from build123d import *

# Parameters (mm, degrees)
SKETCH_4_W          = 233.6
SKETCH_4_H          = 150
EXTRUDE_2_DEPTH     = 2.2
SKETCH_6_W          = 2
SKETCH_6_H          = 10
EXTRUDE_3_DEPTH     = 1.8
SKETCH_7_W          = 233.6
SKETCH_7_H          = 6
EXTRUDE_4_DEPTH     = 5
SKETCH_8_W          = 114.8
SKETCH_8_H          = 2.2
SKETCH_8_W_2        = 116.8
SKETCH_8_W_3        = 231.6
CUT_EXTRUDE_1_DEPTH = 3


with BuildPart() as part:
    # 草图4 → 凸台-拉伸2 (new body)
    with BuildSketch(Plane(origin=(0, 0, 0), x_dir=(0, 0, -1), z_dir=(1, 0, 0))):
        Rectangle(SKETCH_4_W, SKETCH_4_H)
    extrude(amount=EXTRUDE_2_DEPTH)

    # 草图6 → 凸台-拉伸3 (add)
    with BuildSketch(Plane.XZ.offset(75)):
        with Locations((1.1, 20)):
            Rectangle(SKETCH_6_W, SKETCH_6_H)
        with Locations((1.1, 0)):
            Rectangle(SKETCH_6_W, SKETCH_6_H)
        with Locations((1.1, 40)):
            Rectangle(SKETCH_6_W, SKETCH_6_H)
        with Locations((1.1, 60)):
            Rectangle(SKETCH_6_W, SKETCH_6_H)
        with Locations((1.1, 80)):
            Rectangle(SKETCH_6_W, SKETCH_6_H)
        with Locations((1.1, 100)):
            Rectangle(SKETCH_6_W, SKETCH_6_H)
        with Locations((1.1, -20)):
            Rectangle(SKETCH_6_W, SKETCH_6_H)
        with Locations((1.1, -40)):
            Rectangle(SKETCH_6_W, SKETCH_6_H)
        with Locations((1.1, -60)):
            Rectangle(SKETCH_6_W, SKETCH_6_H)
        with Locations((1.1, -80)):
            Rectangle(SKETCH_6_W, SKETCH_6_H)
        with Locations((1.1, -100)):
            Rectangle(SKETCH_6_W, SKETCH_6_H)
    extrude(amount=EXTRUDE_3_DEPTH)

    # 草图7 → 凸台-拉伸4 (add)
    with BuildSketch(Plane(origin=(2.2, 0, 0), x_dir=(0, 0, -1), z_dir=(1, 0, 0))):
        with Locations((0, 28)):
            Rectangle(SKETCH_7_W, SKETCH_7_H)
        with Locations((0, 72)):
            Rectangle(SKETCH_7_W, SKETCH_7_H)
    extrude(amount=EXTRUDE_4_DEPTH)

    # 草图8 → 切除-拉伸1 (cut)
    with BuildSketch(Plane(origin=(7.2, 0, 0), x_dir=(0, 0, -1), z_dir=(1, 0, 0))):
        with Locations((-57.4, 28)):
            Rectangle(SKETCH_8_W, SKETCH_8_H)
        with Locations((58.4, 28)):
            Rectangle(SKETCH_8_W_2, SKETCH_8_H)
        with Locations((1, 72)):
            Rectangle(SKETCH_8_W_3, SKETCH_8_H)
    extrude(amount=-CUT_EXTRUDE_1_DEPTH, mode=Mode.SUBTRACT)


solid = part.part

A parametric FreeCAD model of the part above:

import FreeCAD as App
import Part
import Sketcher

doc = App.newDocument("Part")
body = doc.addObject("PartDesign::Body", "Body")

# Sketch on YZ plane
sketch1 = body.newObject("Sketcher::SketchObject", "Sketch")
sketch1.AttachmentSupport = (doc.getObject("YZ_Plane"), [""])
sketch1.MapMode = "FlatFace"
sketch1.addGeometry(Part.LineSegment(App.Vector(75, 117, 0), App.Vector(-75, 117, 0)), False)
sketch1.addGeometry(Part.LineSegment(App.Vector(-75, 117, 0), App.Vector(-75, -117, 0)), False)
sketch1.addGeometry(Part.LineSegment(App.Vector(-75, -117, 0), App.Vector(75, -117, 0)), False)
sketch1.addGeometry(Part.LineSegment(App.Vector(75, -117, 0), App.Vector(75, 117, 0)), False)
sketch1.addConstraint(Sketcher.Constraint("Coincident", 0, 2, 1, 1))
sketch1.addConstraint(Sketcher.Constraint("Coincident", 1, 2, 2, 1))
sketch1.addConstraint(Sketcher.Constraint("Coincident", 2, 2, 3, 1))
sketch1.addConstraint(Sketcher.Constraint("Coincident", 3, 2, 0, 1))
sketch1.addConstraint(Sketcher.Constraint("Horizontal", 0))
sketch1.addConstraint(Sketcher.Constraint("Vertical", 1))
sketch1.addConstraint(Sketcher.Constraint("Horizontal", 2))
sketch1.addConstraint(Sketcher.Constraint("Vertical", 3))
sketch1.addConstraint(Sketcher.Constraint("Symmetric", 0, 2, 2, 2, -1, 1))
sketch1.addConstraint(Sketcher.Constraint("DistanceX", 0, 2, 0, 1, 150.0))
sketch1.addConstraint(Sketcher.Constraint("DistanceY", 1, 2, 1, 1, 233.6))
pad1 = body.newObject("PartDesign::Pad", "Pad")
pad1.Profile = sketch1
pad1.Length = 2.2

# Sketch on XZ plane
sketch2 = body.newObject("Sketcher::SketchObject", "Sketch001")
sketch2.AttachmentSupport = (doc.getObject("XZ_Plane"), [""])
sketch2.MapMode = "FlatFace"
sketch2.AttachmentOffset = App.Placement(App.Vector(0, 0, 75), App.Rotation())
sketch2.addGeometry(Part.LineSegment(App.Vector(0.1, 25, 0), App.Vector(0.1, 15, 0)), False)
sketch2.addGeometry(Part.LineSegment(App.Vector(0.1, 15, 0), App.Vector(2.1, 15, 0)), False)
sketch2.addGeometry(Part.LineSegment(App.Vector(2.1, 15, 0), App.Vector(2.1, 25, 0)), False)
sketch2.addGeometry(Part.LineSegment(App.Vector(2.1, 25, 0), App.Vector(0.1, 25, 0)), False)
sketch2.addGeometry(Part.LineSegment(App.Vector(0.1, 5, 0), App.Vector(0.1, -5, 0)), False)
sketch2.addGeometry(Part.LineSegment(App.Vector(0.1, -5, 0), App.Vector(2.1, -5, 0)), False)
sketch2.addGeometry(Part.LineSegment(App.Vector(2.1, -5, 0), App.Vector(2.1, 5, 0)), False)
sketch2.addGeometry(Part.LineSegment(App.Vector(2.1, 5, 0), App.Vector(0.1, 5, 0)), False)
sketch2.addGeometry(Part.LineSegment(App.Vector(0.1, 45, 0), App.Vector(0.1, 35, 0)), False)
sketch2.addGeometry(Part.LineSegment(App.Vector(0.1, 35, 0), App.Vector(2.1, 35, 0)), False)
sketch2.addGeometry(Part.LineSegment(App.Vector(2.1, 35, 0), App.Vector(2.1, 45, 0)), False)
sketch2.addGeometry(Part.LineSegment(App.Vector(2.1, 45, 0), App.Vector(0.1, 45, 0)), False)
sketch2.addGeometry(Part.LineSegment(App.Vector(0.1, 65, 0), App.Vector(0.1, 55, 0)), False)
sketch2.addGeometry(Part.LineSegment(App.Vector(0.1, 55, 0), App.Vector(2.1, 55, 0)), False)
sketch2.addGeometry(Part.LineSegment(App.Vector(2.1, 55, 0), App.Vector(2.1, 65, 0)), False)
sketch2.addGeometry(Part.LineSegment(App.Vector(2.1, 65, 0), App.Vector(0.1, 65, 0)), False)
sketch2.addGeometry(Part.LineSegment(App.Vector(0.1, 85, 0), App.Vector(0.1, 75, 0)), False)
sketch2.addGeometry(Part.LineSegment(App.Vector(0.1, 75, 0), App.Vector(2.1, 75, 0)), False)
sketch2.addGeometry(Part.LineSegment(App.Vector(2.1, 75, 0), App.Vector(2.1, 85, 0)), False)
sketch2.addGeometry(Part.LineSegment(App.Vector(2.1, 85, 0), App.Vector(0.1, 85, 0)), False)
sketch2.addGeometry(Part.LineSegment(App.Vector(0.1, 105, 0), App.Vector(0.1, 95, 0)), False)
sketch2.addGeometry(Part.LineSegment(App.Vector(0.1, 95, 0), App.Vector(2.1, 95, 0)), False)
sketch2.addGeometry(Part.LineSegment(App.Vector(2.1, 95, 0), App.Vector(2.1, 105, 0)), False)
sketch2.addGeometry(Part.LineSegment(App.Vector(2.1, 105, 0), App.Vector(0.1, 105, 0)), False)
sketch2.addGeometry(Part.LineSegment(App.Vector(0.1, -15, 0), App.Vector(0.1, -25, 0)), False)
sketch2.addGeometry(Part.LineSegment(App.Vector(0.1, -25, 0), App.Vector(2.1, -25, 0)), False)
sketch2.addGeometry(Part.LineSegment(App.Vector(2.1, -25, 0), App.Vector(2.1, -15, 0)), False)
sketch2.addGeometry(Part.LineSegment(App.Vector(2.1, -15, 0), App.Vector(0.1, -15, 0)), False)
sketch2.addGeometry(Part.LineSegment(App.Vector(0.1, -35, 0), App.Vector(0.1, -45, 0)), False)
sketch2.addGeometry(Part.LineSegment(App.Vector(0.1, -45, 0), App.Vector(2.1, -45, 0)), False)
sketch2.addGeometry(Part.LineSegment(App.Vector(2.1, -45, 0), App.Vector(2.1, -35, 0)), False)
sketch2.addGeometry(Part.LineSegment(App.Vector(2.1, -35, 0), App.Vector(0.1, -35, 0)), False)
sketch2.addGeometry(Part.LineSegment(App.Vector(0.1, -55, 0), App.Vector(0.1, -65, 0)), False)
sketch2.addGeometry(Part.LineSegment(App.Vector(0.1, -65, 0), App.Vector(2.1, -65, 0)), False)
sketch2.addGeometry(Part.LineSegment(App.Vector(2.1, -65, 0), App.Vector(2.1, -55, 0)), False)
sketch2.addGeometry(Part.LineSegment(App.Vector(2.1, -55, 0), App.Vector(0.1, -55, 0)), False)
sketch2.addGeometry(Part.LineSegment(App.Vector(0.1, -75, 0), App.Vector(0.1, -85, 0)), False)
sketch2.addGeometry(Part.LineSegment(App.Vector(0.1, -85, 0), App.Vector(2.1, -85, 0)), False)
sketch2.addGeometry(Part.LineSegment(App.Vector(2.1, -85, 0), App.Vector(2.1, -75, 0)), False)
sketch2.addGeometry(Part.LineSegment(App.Vector(2.1, -75, 0), App.Vector(0.1, -75, 0)), False)
sketch2.addGeometry(Part.LineSegment(App.Vector(0.1, -95, 0), App.Vector(0.1, -105, 0)), False)
sketch2.addGeometry(Part.LineSegment(App.Vector(0.1, -105, 0), App.Vector(2.1, -105, 0)), False)
sketch2.addGeometry(Part.LineSegment(App.Vector(2.1, -105, 0), App.Vector(2.1, -95, 0)), False)
sketch2.addGeometry(Part.LineSegment(App.Vector(2.1, -95, 0), App.Vector(0.1, -95, 0)), False)
sketch2.addConstraint(Sketcher.Constraint("Coincident", 0, 2, 1, 1))
sketch2.addConstraint(Sketcher.Constraint("Coincident", 1, 2, 2, 1))
sketch2.addConstraint(Sketcher.Constraint("Coincident", 2, 2, 3, 1))
sketch2.addConstraint(Sketcher.Constraint("Coincident", 3, 2, 0, 1))
sketch2.addConstraint(Sketcher.Constraint("Coincident", 4, 2, 5, 1))
sketch2.addConstraint(Sketcher.Constraint("Coincident", 5, 2, 6, 1))
sketch2.addConstraint(Sketcher.Constraint("Coincident", 6, 2, 7, 1))
sketch2.addConstraint(Sketcher.Constraint("Coincident", 7, 2, 4, 1))
sketch2.addConstraint(Sketcher.Constraint("Coincident", 8, 2, 9, 1))
sketch2.addConstraint(Sketcher.Constraint("Coincident", 9, 2, 10, 1))
sketch2.addConstraint(Sketcher.Constraint("Coincident", 10, 2, 11, 1))
sketch2.addConstraint(Sketcher.Constraint("Coincident", 11, 2, 8, 1))
sketch2.addConstraint(Sketcher.Constraint("Coincident", 12, 2, 13, 1))
sketch2.addConstraint(Sketcher.Constraint("Coincident", 13, 2, 14, 1))
sketch2.addConstraint(Sketcher.Constraint("Coincident", 14, 2, 15, 1))
sketch2.addConstraint(Sketcher.Constraint("Coincident", 15, 2, 12, 1))
sketch2.addConstraint(Sketcher.Constraint("Coincident", 16, 2, 17, 1))
sketch2.addConstraint(Sketcher.Constraint("Coincident", 17, 2, 18, 1))
sketch2.addConstraint(Sketcher.Constraint("Coincident", 18, 2, 19, 1))
sketch2.addConstraint(Sketcher.Constraint("Coincident", 19, 2, 16, 1))
sketch2.addConstraint(Sketcher.Constraint("Coincident", 20, 2, 21, 1))
sketch2.addConstraint(Sketcher.Constraint("Coincident", 21, 2, 22, 1))
sketch2.addConstraint(Sketcher.Constraint("Coincident", 22, 2, 23, 1))
sketch2.addConstraint(Sketcher.Constraint("Coincident", 23, 2, 20, 1))
sketch2.addConstraint(Sketcher.Constraint("Coincident", 24, 2, 25, 1))
sketch2.addConstraint(Sketcher.Constraint("Coincident", 25, 2, 26, 1))
sketch2.addConstraint(Sketcher.Constraint("Coincident", 26, 2, 27, 1))
sketch2.addConstraint(Sketcher.Constraint("Coincident", 27, 2, 24, 1))
sketch2.addConstraint(Sketcher.Constraint("Coincident", 28, 2, 29, 1))
sketch2.addConstraint(Sketcher.Constraint("Coincident", 29, 2, 30, 1))
sketch2.addConstraint(Sketcher.Constraint("Coincident", 30, 2, 31, 1))
sketch2.addConstraint(Sketcher.Constraint("Coincident", 31, 2, 28, 1))
sketch2.addConstraint(Sketcher.Constraint("Coincident", 32, 2, 33, 1))
sketch2.addConstraint(Sketcher.Constraint("Coincident", 33, 2, 34, 1))
sketch2.addConstraint(Sketcher.Constraint("Coincident", 34, 2, 35, 1))
sketch2.addConstraint(Sketcher.Constraint("Coincident", 35, 2, 32, 1))
sketch2.addConstraint(Sketcher.Constraint("Coincident", 36, 2, 37, 1))
sketch2.addConstraint(Sketcher.Constraint("Coincident", 37, 2, 38, 1))
sketch2.addConstraint(Sketcher.Constraint("Coincident", 38, 2, 39, 1))
sketch2.addConstraint(Sketcher.Constraint("Coincident", 39, 2, 36, 1))
sketch2.addConstraint(Sketcher.Constraint("Coincident", 40, 2, 41, 1))
sketch2.addConstraint(Sketcher.Constraint("Coincident", 41, 2, 42, 1))
sketch2.addConstraint(Sketcher.Constraint("Coincident", 42, 2, 43, 1))
sketch2.addConstraint(Sketcher.Constraint("Coincident", 43, 2, 40, 1))
sketch2.addConstraint(Sketcher.Constraint("Vertical", 0))
sketch2.addConstraint(Sketcher.Constraint("Horizontal", 1))
sketch2.addConstraint(Sketcher.Constraint("Vertical", 2))
sketch2.addConstraint(Sketcher.Constraint("Horizontal", 3))
sketch2.addConstraint(Sketcher.Constraint("Vertical", 4))
sketch2.addConstraint(Sketcher.Constraint("Horizontal", 5))
sketch2.addConstraint(Sketcher.Constraint("Vertical", 6))
sketch2.addConstraint(Sketcher.Constraint("Horizontal", 7))
sketch2.addConstraint(Sketcher.Constraint("Vertical", 8))
sketch2.addConstraint(Sketcher.Constraint("Horizontal", 9))
sketch2.addConstraint(Sketcher.Constraint("Vertical", 10))
sketch2.addConstraint(Sketcher.Constraint("Horizontal", 11))
sketch2.addConstraint(Sketcher.Constraint("Vertical", 12))
sketch2.addConstraint(Sketcher.Constraint("Horizontal", 13))
sketch2.addConstraint(Sketcher.Constraint("Vertical", 14))
sketch2.addConstraint(Sketcher.Constraint("Horizontal", 15))
sketch2.addConstraint(Sketcher.Constraint("Vertical", 16))
sketch2.addConstraint(Sketcher.Constraint("Horizontal", 17))
sketch2.addConstraint(Sketcher.Constraint("Vertical", 18))
sketch2.addConstraint(Sketcher.Constraint("Horizontal", 19))
sketch2.addConstraint(Sketcher.Constraint("Vertical", 20))
sketch2.addConstraint(Sketcher.Constraint("Horizontal", 21))
sketch2.addConstraint(Sketcher.Constraint("Vertical", 22))
sketch2.addConstraint(Sketcher.Constraint("Horizontal", 23))
sketch2.addConstraint(Sketcher.Constraint("Vertical", 24))
sketch2.addConstraint(Sketcher.Constraint("Horizontal", 25))
sketch2.addConstraint(Sketcher.Constraint("Vertical", 26))
sketch2.addConstraint(Sketcher.Constraint("Horizontal", 27))
sketch2.addConstraint(Sketcher.Constraint("Vertical", 28))
sketch2.addConstraint(Sketcher.Constraint("Horizontal", 29))
sketch2.addConstraint(Sketcher.Constraint("Vertical", 30))
sketch2.addConstraint(Sketcher.Constraint("Horizontal", 31))
sketch2.addConstraint(Sketcher.Constraint("Vertical", 32))
sketch2.addConstraint(Sketcher.Constraint("Horizontal", 33))
sketch2.addConstraint(Sketcher.Constraint("Vertical", 34))
sketch2.addConstraint(Sketcher.Constraint("Horizontal", 35))
sketch2.addConstraint(Sketcher.Constraint("Vertical", 36))
sketch2.addConstraint(Sketcher.Constraint("Horizontal", 37))
sketch2.addConstraint(Sketcher.Constraint("Vertical", 38))
sketch2.addConstraint(Sketcher.Constraint("Horizontal", 39))
sketch2.addConstraint(Sketcher.Constraint("Vertical", 40))
sketch2.addConstraint(Sketcher.Constraint("Horizontal", 41))
sketch2.addConstraint(Sketcher.Constraint("Vertical", 42))
sketch2.addConstraint(Sketcher.Constraint("Horizontal", 43))
sketch2.addConstraint(Sketcher.Constraint("Symmetric", 3, 2, 24, 2, -1))
sketch2.addConstraint(Sketcher.Constraint("Symmetric", 1, 2, 26, 2, -1))
sketch2.addConstraint(Sketcher.Constraint("Symmetric", 11, 2, 28, 2, -1))
sketch2.addConstraint(Sketcher.Constraint("Symmetric", 9, 2, 30, 2, -1))
sketch2.addConstraint(Sketcher.Constraint("Symmetric", 15, 2, 32, 2, -1))
sketch2.addConstraint(Sketcher.Constraint("Symmetric", 13, 2, 34, 2, -1))
sketch2.addConstraint(Sketcher.Constraint("Symmetric", 19, 2, 36, 2, -1))
sketch2.addConstraint(Sketcher.Constraint("Symmetric", 17, 2, 38, 2, -1))
sketch2.addConstraint(Sketcher.Constraint("Symmetric", 23, 2, 40, 2, -1))
sketch2.addConstraint(Sketcher.Constraint("Symmetric", 21, 2, 42, 2, -1))
sketch2.addConstraint(Sketcher.Constraint("Vertical", 3, 2, 4, 2))
sketch2.addConstraint(Sketcher.Constraint("Vertical", 2, 2, 5, 2))
sketch2.addConstraint(Sketcher.Constraint("Vertical", 7, 2, 8, 2))
sketch2.addConstraint(Sketcher.Constraint("Vertical", 6, 2, 9, 2))
sketch2.addConstraint(Sketcher.Constraint("Vertical", 11, 2, 12, 2))
sketch2.addConstraint(Sketcher.Constraint("Vertical", 10, 2, 13, 2))
sketch2.addConstraint(Sketcher.Constraint("Vertical", 15, 2, 16, 2))
sketch2.addConstraint(Sketcher.Constraint("Vertical", 14, 2, 17, 2))
sketch2.addConstraint(Sketcher.Constraint("Vertical", 19, 2, 20, 2))
sketch2.addConstraint(Sketcher.Constraint("Vertical", 18, 2, 21, 2))
sketch2.addConstraint(Sketcher.Constraint("Equal", 2, 4))
sketch2.addConstraint(Sketcher.Constraint("Equal", 6, 8))
sketch2.addConstraint(Sketcher.Constraint("Equal", 10, 12))
sketch2.addConstraint(Sketcher.Constraint("Equal", 14, 16))
sketch2.addConstraint(Sketcher.Constraint("Equal", 18, 20))
sketch2.addConstraint(Sketcher.Constraint("DistanceX", 1, 1, 1, 2, 2.0))
sketch2.addConstraint(Sketcher.Constraint("DistanceY", 0, 2, 0, 1, 10.0))
sketch2.addConstraint(Sketcher.Constraint("DistanceY", -1, 1, 0, 2, 15.0))
sketch2.addConstraint(Sketcher.Constraint("DistanceY", 4, 2, -1, 1, 5.0))
sketch2.addConstraint(Sketcher.Constraint("DistanceY", -1, 1, 8, 2, 35.0))
sketch2.addConstraint(Sketcher.Constraint("DistanceY", -1, 1, 12, 2, 55.0))
sketch2.addConstraint(Sketcher.Constraint("DistanceY", -1, 1, 16, 2, 75.0))
sketch2.addConstraint(Sketcher.Constraint("DistanceY", -1, 1, 20, 2, 95.0))
sketch2.addConstraint(Sketcher.Constraint("DistanceX", -1, 1, 0, 2, 0.1))
pad2 = body.newObject("PartDesign::Pad", "Pad001")
pad2.Profile = sketch2
pad2.Length = 1.8

# Sketch on YZ plane
sketch3 = body.newObject("Sketcher::SketchObject", "Sketch002")
sketch3.AttachmentSupport = (doc.getObject("YZ_Plane"), [""])
sketch3.MapMode = "FlatFace"
sketch3.AttachmentOffset = App.Placement(App.Vector(0, 0, 2.2), App.Rotation())
sketch3.addGeometry(Part.LineSegment(App.Vector(31, 117, 0), App.Vector(25, 117, 0)), False)
sketch3.addGeometry(Part.LineSegment(App.Vector(25, 117, 0), App.Vector(25, -117, 0)), False)
sketch3.addGeometry(Part.LineSegment(App.Vector(25, -117, 0), App.Vector(31, -117, 0)), False)
sketch3.addGeometry(Part.LineSegment(App.Vector(31, -117, 0), App.Vector(31, 117, 0)), False)
sketch3.addGeometry(Part.LineSegment(App.Vector(75, 117, 0), App.Vector(69, 117, 0)), False)
sketch3.addGeometry(Part.LineSegment(App.Vector(69, 117, 0), App.Vector(69, -117, 0)), False)
sketch3.addGeometry(Part.LineSegment(App.Vector(69, -117, 0), App.Vector(75, -117, 0)), False)
sketch3.addGeometry(Part.LineSegment(App.Vector(75, -117, 0), App.Vector(75, 117, 0)), False)
sketch3.addConstraint(Sketcher.Constraint("Coincident", 0, 2, 1, 1))
sketch3.addConstraint(Sketcher.Constraint("Coincident", 1, 2, 2, 1))
sketch3.addConstraint(Sketcher.Constraint("Coincident", 2, 2, 3, 1))
sketch3.addConstraint(Sketcher.Constraint("Coincident", 3, 2, 0, 1))
sketch3.addConstraint(Sketcher.Constraint("Coincident", 4, 2, 5, 1))
sketch3.addConstraint(Sketcher.Constraint("Coincident", 5, 2, 6, 1))
sketch3.addConstraint(Sketcher.Constraint("Coincident", 6, 2, 7, 1))
sketch3.addConstraint(Sketcher.Constraint("Coincident", 7, 2, 4, 1))
sketch3.addConstraint(Sketcher.Constraint("Horizontal", 0))
sketch3.addConstraint(Sketcher.Constraint("Vertical", 1))
sketch3.addConstraint(Sketcher.Constraint("Horizontal", 2))
sketch3.addConstraint(Sketcher.Constraint("Vertical", 3))
sketch3.addConstraint(Sketcher.Constraint("Horizontal", 4))
sketch3.addConstraint(Sketcher.Constraint("Vertical", 5))
sketch3.addConstraint(Sketcher.Constraint("Horizontal", 6))
sketch3.addConstraint(Sketcher.Constraint("Vertical", 7))
sketch3.addConstraint(Sketcher.Constraint("Horizontal", 3, 2, 4, 2))
sketch3.addConstraint(Sketcher.Constraint("Horizontal", 2, 2, 5, 2))
sketch3.addConstraint(Sketcher.Constraint("Equal", 2, 4))
sketch3.addConstraint(Sketcher.Constraint("DistanceX", 0, 2, 0, 1, 6.0))
sketch3.addConstraint(Sketcher.Constraint("DistanceY", 1, 2, 1, 1, 233.6))
sketch3.addConstraint(Sketcher.Constraint("DistanceX", -1, 1, 0, 2, 25.0))
sketch3.addConstraint(Sketcher.Constraint("DistanceX", -1, 1, 4, 2, 69.0))
sketch3.addConstraint(Sketcher.Constraint("DistanceY", -1, 1, 0, 2, 116.8))
pad3 = body.newObject("PartDesign::Pad", "Pad002")
pad3.Profile = sketch3
pad3.Length = 5

# Sketch on YZ plane
sketch4 = body.newObject("Sketcher::SketchObject", "Sketch003")
sketch4.AttachmentSupport = (doc.getObject("YZ_Plane"), [""])
sketch4.MapMode = "FlatFace"
sketch4.AttachmentOffset = App.Placement(App.Vector(0, 0, 7.2), App.Rotation())
sketch4.addGeometry(Part.LineSegment(App.Vector(29.1, 114.8, 0), App.Vector(26.9, 114.8, 0)), False)
sketch4.addGeometry(Part.LineSegment(App.Vector(26.9, 114.8, 0), App.Vector(26.9, -116.8, 0)), False)
sketch4.addGeometry(Part.LineSegment(App.Vector(26.9, -116.8, 0), App.Vector(29.1, -116.8, 0)), False)
sketch4.addGeometry(Part.LineSegment(App.Vector(29.1, -116.8, 0), App.Vector(29.1, 114.8, 0)), False)
sketch4.addGeometry(Part.LineSegment(App.Vector(73.1, 114.8, 0), App.Vector(70.9, 114.8, 0)), False)
sketch4.addGeometry(Part.LineSegment(App.Vector(70.9, 114.8, 0), App.Vector(70.9, -116.8, 0)), False)
sketch4.addGeometry(Part.LineSegment(App.Vector(70.9, -116.8, 0), App.Vector(73.1, -116.8, 0)), False)
sketch4.addGeometry(Part.LineSegment(App.Vector(73.1, -116.8, 0), App.Vector(73.1, 114.8, 0)), False)
sketch4.addConstraint(Sketcher.Constraint("Coincident", 0, 2, 1, 1))
sketch4.addConstraint(Sketcher.Constraint("Coincident", 1, 2, 2, 1))
sketch4.addConstraint(Sketcher.Constraint("Coincident", 2, 2, 3, 1))
sketch4.addConstraint(Sketcher.Constraint("Coincident", 3, 2, 0, 1))
sketch4.addConstraint(Sketcher.Constraint("Coincident", 4, 2, 5, 1))
sketch4.addConstraint(Sketcher.Constraint("Coincident", 5, 2, 6, 1))
sketch4.addConstraint(Sketcher.Constraint("Coincident", 6, 2, 7, 1))
sketch4.addConstraint(Sketcher.Constraint("Coincident", 7, 2, 4, 1))
sketch4.addConstraint(Sketcher.Constraint("Horizontal", 0))
sketch4.addConstraint(Sketcher.Constraint("Vertical", 1))
sketch4.addConstraint(Sketcher.Constraint("Horizontal", 2))
sketch4.addConstraint(Sketcher.Constraint("Vertical", 3))
sketch4.addConstraint(Sketcher.Constraint("Horizontal", 4))
sketch4.addConstraint(Sketcher.Constraint("Vertical", 5))
sketch4.addConstraint(Sketcher.Constraint("Horizontal", 6))
sketch4.addConstraint(Sketcher.Constraint("Vertical", 7))
sketch4.addConstraint(Sketcher.Constraint("Horizontal", 3, 2, 4, 2))
sketch4.addConstraint(Sketcher.Constraint("Horizontal", 2, 2, 5, 2))
sketch4.addConstraint(Sketcher.Constraint("Equal", 2, 4))
sketch4.addConstraint(Sketcher.Constraint("DistanceX", 0, 2, 0, 1, 2.2))
sketch4.addConstraint(Sketcher.Constraint("DistanceY", 1, 2, 1, 1, 231.6))
sketch4.addConstraint(Sketcher.Constraint("DistanceX", 0, 2, 4, 2, 44.0))
sketch4.addConstraint(Sketcher.Constraint("DistanceX", -1, 1, 0, 2, 26.9))
sketch4.addConstraint(Sketcher.Constraint("DistanceY", -1, 1, 0, 2, 114.8))
pocket1 = body.newObject("PartDesign::Pocket", "Pocket")
pocket1.Profile = sketch4
pocket1.Length = 3

doc.recompute()
